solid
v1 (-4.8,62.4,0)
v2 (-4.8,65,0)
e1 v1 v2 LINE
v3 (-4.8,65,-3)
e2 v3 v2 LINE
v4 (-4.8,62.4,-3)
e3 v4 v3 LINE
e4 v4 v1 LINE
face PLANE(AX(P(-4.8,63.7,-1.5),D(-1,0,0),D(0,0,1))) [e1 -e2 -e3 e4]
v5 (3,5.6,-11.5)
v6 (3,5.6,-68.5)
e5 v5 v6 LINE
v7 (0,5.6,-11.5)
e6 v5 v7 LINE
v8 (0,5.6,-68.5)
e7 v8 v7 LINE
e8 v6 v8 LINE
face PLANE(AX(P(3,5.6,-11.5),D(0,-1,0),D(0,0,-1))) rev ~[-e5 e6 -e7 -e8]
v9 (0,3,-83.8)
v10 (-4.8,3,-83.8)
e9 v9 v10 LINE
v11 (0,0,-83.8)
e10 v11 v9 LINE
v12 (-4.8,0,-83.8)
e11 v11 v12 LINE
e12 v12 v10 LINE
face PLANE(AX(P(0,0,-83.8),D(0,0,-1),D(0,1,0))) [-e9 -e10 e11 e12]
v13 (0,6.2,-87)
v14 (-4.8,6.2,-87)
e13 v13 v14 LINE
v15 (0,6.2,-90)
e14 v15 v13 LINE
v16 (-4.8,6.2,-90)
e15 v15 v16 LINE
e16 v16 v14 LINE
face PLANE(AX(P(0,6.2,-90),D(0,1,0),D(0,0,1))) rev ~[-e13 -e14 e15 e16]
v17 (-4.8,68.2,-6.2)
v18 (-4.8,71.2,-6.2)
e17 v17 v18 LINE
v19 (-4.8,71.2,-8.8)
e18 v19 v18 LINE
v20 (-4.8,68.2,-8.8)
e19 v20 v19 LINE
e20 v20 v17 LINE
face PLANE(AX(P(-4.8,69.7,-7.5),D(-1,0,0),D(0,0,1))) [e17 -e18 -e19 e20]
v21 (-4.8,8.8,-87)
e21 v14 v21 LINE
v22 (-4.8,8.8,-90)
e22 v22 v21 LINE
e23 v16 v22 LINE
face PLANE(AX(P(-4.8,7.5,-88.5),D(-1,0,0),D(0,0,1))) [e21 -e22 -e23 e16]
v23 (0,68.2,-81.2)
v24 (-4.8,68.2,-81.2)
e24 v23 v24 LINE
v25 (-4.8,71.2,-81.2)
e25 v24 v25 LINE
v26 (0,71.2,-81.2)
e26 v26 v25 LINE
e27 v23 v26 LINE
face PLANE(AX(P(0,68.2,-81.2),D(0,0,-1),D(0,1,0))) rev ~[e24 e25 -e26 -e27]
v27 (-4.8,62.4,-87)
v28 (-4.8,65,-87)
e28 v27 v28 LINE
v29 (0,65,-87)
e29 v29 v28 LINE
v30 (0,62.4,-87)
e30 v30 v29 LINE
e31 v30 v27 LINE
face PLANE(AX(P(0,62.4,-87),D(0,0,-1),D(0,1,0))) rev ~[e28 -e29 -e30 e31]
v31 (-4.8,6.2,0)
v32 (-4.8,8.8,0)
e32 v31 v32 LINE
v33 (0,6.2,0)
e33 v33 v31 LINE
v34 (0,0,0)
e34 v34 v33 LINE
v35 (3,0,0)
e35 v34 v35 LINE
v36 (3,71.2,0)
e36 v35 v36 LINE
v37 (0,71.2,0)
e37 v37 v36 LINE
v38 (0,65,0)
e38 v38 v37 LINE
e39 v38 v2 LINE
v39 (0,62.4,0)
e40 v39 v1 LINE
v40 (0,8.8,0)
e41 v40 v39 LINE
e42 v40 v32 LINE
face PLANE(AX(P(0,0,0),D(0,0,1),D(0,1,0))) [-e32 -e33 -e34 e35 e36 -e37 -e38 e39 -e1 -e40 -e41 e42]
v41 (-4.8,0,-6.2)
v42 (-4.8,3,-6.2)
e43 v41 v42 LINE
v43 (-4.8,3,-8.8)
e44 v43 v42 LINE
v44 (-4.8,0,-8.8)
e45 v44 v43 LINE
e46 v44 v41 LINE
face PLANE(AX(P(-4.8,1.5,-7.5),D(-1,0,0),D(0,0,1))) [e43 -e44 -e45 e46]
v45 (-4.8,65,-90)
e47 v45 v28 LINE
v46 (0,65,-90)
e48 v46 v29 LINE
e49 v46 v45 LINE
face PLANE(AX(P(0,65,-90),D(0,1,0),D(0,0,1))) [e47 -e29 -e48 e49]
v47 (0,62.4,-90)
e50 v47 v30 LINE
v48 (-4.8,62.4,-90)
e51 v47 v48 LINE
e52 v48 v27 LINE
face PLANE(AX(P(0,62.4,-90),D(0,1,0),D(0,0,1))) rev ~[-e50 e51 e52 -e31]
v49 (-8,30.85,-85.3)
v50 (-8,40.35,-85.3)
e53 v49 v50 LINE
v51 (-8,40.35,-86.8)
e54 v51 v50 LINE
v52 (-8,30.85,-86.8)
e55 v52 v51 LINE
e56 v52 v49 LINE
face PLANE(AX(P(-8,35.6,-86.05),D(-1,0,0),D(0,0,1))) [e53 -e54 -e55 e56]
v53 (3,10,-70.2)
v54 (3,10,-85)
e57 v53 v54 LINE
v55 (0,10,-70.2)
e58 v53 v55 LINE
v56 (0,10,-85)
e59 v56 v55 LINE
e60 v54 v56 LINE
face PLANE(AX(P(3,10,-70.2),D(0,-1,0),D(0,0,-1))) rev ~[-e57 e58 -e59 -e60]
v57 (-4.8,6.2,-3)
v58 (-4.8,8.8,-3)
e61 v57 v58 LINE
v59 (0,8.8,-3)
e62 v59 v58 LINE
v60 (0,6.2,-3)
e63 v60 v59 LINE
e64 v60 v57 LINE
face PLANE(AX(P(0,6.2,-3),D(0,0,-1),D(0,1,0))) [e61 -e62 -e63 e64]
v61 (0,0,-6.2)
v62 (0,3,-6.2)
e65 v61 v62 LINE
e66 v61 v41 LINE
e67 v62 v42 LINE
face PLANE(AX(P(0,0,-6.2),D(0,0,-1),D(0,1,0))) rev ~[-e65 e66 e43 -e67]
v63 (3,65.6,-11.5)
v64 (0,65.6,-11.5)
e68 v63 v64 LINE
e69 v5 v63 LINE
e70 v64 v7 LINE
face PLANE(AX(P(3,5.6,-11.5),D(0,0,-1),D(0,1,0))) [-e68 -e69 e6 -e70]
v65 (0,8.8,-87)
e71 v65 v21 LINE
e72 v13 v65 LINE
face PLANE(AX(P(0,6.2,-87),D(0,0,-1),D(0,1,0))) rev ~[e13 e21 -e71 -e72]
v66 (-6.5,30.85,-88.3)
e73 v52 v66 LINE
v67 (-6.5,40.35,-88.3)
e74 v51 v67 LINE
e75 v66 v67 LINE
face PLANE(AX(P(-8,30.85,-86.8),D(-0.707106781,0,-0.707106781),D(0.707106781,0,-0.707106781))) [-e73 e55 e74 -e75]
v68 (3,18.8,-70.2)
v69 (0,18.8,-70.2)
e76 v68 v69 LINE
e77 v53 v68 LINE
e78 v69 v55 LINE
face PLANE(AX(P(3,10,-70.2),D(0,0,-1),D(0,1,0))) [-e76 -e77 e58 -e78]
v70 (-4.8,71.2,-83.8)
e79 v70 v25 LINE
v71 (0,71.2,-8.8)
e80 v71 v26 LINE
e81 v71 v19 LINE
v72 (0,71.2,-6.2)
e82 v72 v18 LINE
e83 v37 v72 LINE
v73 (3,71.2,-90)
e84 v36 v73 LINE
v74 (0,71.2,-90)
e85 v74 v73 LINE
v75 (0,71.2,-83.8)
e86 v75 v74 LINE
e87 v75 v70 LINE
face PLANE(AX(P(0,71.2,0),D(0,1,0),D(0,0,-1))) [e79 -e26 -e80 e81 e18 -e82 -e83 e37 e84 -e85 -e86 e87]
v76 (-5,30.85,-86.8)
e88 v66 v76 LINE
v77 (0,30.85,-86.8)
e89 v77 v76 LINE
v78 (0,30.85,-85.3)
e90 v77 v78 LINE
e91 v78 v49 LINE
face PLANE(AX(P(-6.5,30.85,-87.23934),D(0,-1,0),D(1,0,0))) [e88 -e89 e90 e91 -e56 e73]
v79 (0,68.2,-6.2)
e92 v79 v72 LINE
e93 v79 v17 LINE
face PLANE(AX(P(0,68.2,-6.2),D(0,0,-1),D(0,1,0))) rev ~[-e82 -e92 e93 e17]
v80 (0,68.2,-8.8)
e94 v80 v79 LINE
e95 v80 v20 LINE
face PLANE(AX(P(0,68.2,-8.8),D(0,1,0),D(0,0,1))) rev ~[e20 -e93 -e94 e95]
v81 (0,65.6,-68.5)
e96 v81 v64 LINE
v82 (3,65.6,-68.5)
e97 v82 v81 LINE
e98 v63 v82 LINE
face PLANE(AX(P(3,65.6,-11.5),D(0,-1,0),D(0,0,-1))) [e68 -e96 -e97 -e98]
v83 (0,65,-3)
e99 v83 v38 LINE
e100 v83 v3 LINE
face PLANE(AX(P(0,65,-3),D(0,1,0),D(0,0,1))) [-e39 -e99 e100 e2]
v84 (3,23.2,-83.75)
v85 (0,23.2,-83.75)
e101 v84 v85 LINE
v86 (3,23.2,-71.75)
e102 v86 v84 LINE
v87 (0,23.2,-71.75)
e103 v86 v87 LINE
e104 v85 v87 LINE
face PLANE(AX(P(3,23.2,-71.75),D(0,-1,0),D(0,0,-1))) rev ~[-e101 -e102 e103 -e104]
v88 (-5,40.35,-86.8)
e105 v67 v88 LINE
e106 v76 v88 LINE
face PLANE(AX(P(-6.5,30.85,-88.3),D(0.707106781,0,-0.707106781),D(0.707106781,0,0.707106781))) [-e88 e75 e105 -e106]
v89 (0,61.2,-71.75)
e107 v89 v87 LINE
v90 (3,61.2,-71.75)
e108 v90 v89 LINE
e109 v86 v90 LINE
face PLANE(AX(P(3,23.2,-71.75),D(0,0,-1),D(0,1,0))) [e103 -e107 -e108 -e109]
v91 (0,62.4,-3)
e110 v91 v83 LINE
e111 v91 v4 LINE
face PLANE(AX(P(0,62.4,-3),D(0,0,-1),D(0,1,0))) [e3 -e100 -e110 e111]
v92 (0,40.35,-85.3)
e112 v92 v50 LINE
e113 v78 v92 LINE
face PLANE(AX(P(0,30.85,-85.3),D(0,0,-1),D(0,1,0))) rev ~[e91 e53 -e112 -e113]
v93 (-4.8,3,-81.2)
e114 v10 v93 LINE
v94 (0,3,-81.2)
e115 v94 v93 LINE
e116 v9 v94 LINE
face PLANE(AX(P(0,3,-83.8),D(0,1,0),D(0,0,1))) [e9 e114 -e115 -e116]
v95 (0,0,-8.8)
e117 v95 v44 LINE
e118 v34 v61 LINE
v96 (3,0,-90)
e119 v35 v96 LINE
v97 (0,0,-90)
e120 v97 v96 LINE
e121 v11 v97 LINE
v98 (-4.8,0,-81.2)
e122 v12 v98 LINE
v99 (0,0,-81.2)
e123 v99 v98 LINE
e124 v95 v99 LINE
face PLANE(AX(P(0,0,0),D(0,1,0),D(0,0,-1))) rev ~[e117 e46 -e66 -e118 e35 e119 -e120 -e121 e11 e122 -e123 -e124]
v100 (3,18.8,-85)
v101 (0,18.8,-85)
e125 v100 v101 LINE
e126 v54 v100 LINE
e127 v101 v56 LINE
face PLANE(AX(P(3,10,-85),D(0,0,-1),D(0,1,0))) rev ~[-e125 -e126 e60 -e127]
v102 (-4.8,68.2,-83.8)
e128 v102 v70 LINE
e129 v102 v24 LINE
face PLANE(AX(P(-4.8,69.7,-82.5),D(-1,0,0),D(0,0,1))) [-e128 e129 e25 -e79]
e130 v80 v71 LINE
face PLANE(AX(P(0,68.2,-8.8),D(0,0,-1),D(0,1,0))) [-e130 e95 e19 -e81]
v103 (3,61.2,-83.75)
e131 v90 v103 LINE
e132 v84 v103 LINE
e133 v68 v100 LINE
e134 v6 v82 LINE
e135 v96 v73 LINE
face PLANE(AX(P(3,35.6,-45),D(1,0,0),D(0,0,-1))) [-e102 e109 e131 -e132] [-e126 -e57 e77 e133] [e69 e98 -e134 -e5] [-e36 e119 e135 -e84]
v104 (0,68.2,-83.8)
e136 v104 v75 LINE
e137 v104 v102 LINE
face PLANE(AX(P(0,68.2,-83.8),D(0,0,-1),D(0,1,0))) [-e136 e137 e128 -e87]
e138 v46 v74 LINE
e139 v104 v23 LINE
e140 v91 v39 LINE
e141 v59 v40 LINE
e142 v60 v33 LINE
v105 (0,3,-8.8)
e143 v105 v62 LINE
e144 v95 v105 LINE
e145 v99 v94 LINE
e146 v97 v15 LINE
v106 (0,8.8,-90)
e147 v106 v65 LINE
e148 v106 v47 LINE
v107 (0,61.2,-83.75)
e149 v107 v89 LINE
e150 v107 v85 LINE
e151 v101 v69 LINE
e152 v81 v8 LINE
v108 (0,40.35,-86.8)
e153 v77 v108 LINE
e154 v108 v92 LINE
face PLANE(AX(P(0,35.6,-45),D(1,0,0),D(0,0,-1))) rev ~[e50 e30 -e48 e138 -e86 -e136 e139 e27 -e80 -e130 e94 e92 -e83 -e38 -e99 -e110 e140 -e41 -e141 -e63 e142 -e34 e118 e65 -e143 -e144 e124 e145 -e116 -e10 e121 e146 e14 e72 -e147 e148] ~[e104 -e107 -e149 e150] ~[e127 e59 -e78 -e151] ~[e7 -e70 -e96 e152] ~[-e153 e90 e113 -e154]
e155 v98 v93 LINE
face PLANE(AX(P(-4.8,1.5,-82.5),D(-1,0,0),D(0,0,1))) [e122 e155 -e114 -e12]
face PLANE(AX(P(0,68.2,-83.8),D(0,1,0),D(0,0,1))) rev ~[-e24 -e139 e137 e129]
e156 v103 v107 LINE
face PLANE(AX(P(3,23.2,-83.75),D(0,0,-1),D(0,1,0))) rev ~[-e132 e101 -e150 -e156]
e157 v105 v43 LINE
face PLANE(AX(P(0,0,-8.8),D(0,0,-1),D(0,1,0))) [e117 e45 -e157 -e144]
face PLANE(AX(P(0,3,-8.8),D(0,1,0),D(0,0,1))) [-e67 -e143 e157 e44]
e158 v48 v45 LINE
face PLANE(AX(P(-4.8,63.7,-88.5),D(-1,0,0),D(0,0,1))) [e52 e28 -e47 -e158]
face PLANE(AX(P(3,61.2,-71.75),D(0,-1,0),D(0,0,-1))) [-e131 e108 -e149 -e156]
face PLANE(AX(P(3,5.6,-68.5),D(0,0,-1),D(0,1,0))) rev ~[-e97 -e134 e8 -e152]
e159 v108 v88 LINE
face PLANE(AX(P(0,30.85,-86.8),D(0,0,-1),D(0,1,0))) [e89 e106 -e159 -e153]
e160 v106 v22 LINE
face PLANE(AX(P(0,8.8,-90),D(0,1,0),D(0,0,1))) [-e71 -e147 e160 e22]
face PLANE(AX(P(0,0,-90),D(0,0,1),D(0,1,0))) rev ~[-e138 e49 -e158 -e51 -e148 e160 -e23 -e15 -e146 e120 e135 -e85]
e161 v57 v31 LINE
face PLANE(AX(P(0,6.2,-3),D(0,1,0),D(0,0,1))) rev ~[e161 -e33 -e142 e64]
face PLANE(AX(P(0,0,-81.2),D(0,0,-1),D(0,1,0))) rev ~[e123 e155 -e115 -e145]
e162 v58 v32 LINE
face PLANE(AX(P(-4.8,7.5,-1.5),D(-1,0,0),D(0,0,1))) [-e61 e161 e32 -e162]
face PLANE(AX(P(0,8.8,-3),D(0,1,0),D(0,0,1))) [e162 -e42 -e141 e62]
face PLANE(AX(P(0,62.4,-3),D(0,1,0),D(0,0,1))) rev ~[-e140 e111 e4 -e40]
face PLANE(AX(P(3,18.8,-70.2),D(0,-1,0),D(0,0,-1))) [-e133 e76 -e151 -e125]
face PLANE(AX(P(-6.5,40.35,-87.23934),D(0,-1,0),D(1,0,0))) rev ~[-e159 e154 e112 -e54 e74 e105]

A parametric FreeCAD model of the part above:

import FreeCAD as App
import Part
import Sketcher


def add_polygon(sketch, points):
    """Adds a closed chain of lines whose ends are joined by coincident constraints."""
    first, n = sketch.GeometryCount, len(points)
    for a, b in zip(points, points[1:] + points[:1]):
        sketch.addGeometry(Part.LineSegment(App.Vector(*a, 0), App.Vector(*b, 0)), False)
    for i in range(n):
        sketch.addConstraint(Sketcher.Constraint("Coincident", first + i, 2, first + (i + 1) % n, 1))

doc = App.newDocument("Part")
body = doc.addObject("PartDesign::Body", "Body")

# Sketch on YZ plane
sketch1 = doc.addObject("Sketcher::SketchObject", "Sketch")
body.addObject(sketch1)
sketch1.AttachmentSupport = (doc.YZ_Plane, [""])
sketch1.MapMode = "FlatFace"
add_polygon(sketch1, [(71.2, 0), (0, 0), (0, -90), (71.2, -90)])  # lines 0-3
sketch1.addConstraint(Sketcher.Constraint("Horizontal", 0))
sketch1.addConstraint(Sketcher.Constraint("Vertical", 1))
sketch1.addConstraint(Sketcher.Constraint("Horizontal", 2))
sketch1.addConstraint(Sketcher.Constraint("Vertical", 3))
sketch1.addConstraint(Sketcher.Constraint("Coincident", 0, 2, -1, 1))
sketch1.addConstraint(Sketcher.Constraint("DistanceY", 1, 2, 1, 1, 90.0))
sketch1.addConstraint(Sketcher.Constraint("DistanceX", 0, 2, 0, 1, 71.2))
pad1 = doc.addObject("PartDesign::Pad", "Pad")
body.addObject(pad1)
pad1.Profile = sketch1
pad1.Length = 3

# Sketch on YZ plane
sketch2 = doc.addObject("Sketcher::SketchObject", "Sketch001")
body.addObject(sketch2)
sketch2.AttachmentSupport = (doc.YZ_Plane, [""])
sketch2.MapMode = "FlatFace"
add_polygon(sketch2, [(65, -90), (62.4, -90), (62.4, -87), (65, -87)])  # lines 0-3
add_polygon(sketch2, [(71.2, -83.8), (68.2, -83.8), (68.2, -81.2), (71.2, -81.2)])  # lines 4-7
add_polygon(sketch2, [(71.2, -8.8), (68.2, -8.8), (68.2, -6.2), (71.2, -6.2)])  # lines 8-11
add_polygon(sketch2, [(65, -3), (62.4, -3), (62.4, 0), (65, 0)])  # lines 12-15
add_polygon(sketch2, [(8.8, -3), (6.2, -3), (6.2, 0), (8.8, 0)])  # lines 16-19
add_polygon(sketch2, [(3, -8.8), (0, -8.8), (0, -6.2), (3, -6.2)])  # lines 20-23
add_polygon(sketch2, [(8.8, -90), (6.2, -90), (6.2, -87), (8.8, -87)])  # lines 24-27
add_polygon(sketch2, [(3, -83.8), (0, -83.8), (0, -81.2), (3, -81.2)])  # lines 28-31
sketch2.addConstraint(Sketcher.Constraint("Horizontal", 0))
sketch2.addConstraint(Sketcher.Constraint("Vertical", 1))
sketch2.addConstraint(Sketcher.Constraint("Horizontal", 2))
sketch2.addConstraint(Sketcher.Constraint("Vertical", 3))
sketch2.addConstraint(Sketcher.Constraint("Horizontal", 4))
sketch2.addConstraint(Sketcher.Constraint("Vertical", 5))
sketch2.addConstraint(Sketcher.Constraint("Horizontal", 6))
sketch2.addConstraint(Sketcher.Constraint("Vertical", 7))
sketch2.addConstraint(Sketcher.Constraint("Horizontal", 8))
sketch2.addConstraint(Sketcher.Constraint("Vertical", 9))
sketch2.addConstraint(Sketcher.Constraint("Horizontal", 10))
sketch2.addConstraint(Sketcher.Constraint("Vertical", 11))
sketch2.addConstraint(Sketcher.Constraint("Horizontal", 12))
sketch2.addConstraint(Sketcher.Constraint("Vertical", 13))
sketch2.addConstraint(Sketcher.Constraint("Horizontal", 14))
sketch2.addConstraint(Sketcher.Constraint("Vertical", 15))
sketch2.addConstraint(Sketcher.Constraint("Horizontal", 16))
sketch2.addConstraint(Sketcher.Constraint("Vertical", 17))
sketch2.addConstraint(Sketcher.Constraint("Horizontal", 18))
sketch2.addConstraint(Sketcher.Constraint("Vertical", 19))
sketch2.addConstraint(Sketcher.Constraint("Horizontal", 20))
sketch2.addConstraint(Sketcher.Constraint("Vertical", 21))
sketch2.addConstraint(Sketcher.Constraint("Horizontal", 22))
sketch2.addConstraint(Sketcher.Constraint("Vertical", 23))
sketch2.addConstraint(Sketcher.Constraint("Horizontal", 24))
sketch2.addConstraint(Sketcher.Constraint("Vertical", 25))
sketch2.addConstraint(Sketcher.Constraint("Horizontal", 26))
sketch2.addConstraint(Sketcher.Constraint("Vertical", 27))
sketch2.addConstraint(Sketcher.Constraint("Horizontal", 28))
sketch2.addConstraint(Sketcher.Constraint("Vertical", 29))
sketch2.addConstraint(Sketcher.Constraint("Horizontal", 30))
sketch2.addConstraint(Sketcher.Constraint("Vertical", 31))
sketch2.addConstraint(Sketcher.Constraint("PointOnObject", 13, 2, -1))
sketch2.addConstraint(Sketcher.Constraint("PointOnObject", 17, 2, -1))
sketch2.addConstraint(Sketcher.Constraint("PointOnObject", 20, 2, -2))
sketch2.addConstraint(Sketcher.Constraint("PointOnObject", 28, 2, -2))
sketch2.addConstraint(Sketcher.Constraint("Horizontal", 15, 2, 16, 2))
sketch2.addConstraint(Sketcher.Constraint("Horizontal", 11, 2, 20, 2))
sketch2.addConstraint(Sketcher.Constraint("Horizontal", 10, 2, 21, 2))
sketch2.addConstraint(Sketcher.Constraint("Horizontal", 3, 2, 24, 2))
sketch2.addConstraint(Sketcher.Constraint("Horizontal", 2, 2, 25, 2))
sketch2.addConstraint(Sketcher.Constraint("Horizontal", 7, 2, 28, 2))
sketch2.addConstraint(Sketcher.Constraint("Horizontal", 6, 2, 29, 2))
sketch2.addConstraint(Sketcher.Constraint("Vertical", 5, 2, 8, 2))
sketch2.addConstraint(Sketcher.Constraint("Vertical", 7, 2, 10, 2))
sketch2.addConstraint(Sketcher.Constraint("Vertical", 1, 2, 12, 2))
sketch2.addConstraint(Sketcher.Constraint("Vertical", 3, 2, 14, 2))
sketch2.addConstraint(Sketcher.Constraint("Vertical", 17, 2, 24, 2))
sketch2.addConstraint(Sketcher.Constraint("Vertical", 19, 2, 26, 2))
sketch2.addConstraint(Sketcher.Constraint("Vertical", 23, 2, 30, 2))
sketch2.addConstraint(Sketcher.Constraint("Equal", 14, 16))
sketch2.addConstraint(Sketcher.Constraint("Equal", 10, 20))
sketch2.addConstraint(Sketcher.Constraint("Equal", 30, 1))
sketch2.addConstraint(Sketcher.Constraint("Equal", 26, 5))
sketch2.addConstraint(Sketcher.Constraint("Equal", 7, 9))
sketch2.addConstraint(Sketcher.Constraint("Equal", 3, 13))
sketch2.addConstraint(Sketcher.Constraint("DistanceX", 4, 2, 4, 1, 3.0))
sketch2.addConstraint(Sketcher.Constraint("DistanceX", 0, 2, 0, 1, 2.6))
sketch2.addConstraint(Sketcher.Constraint("DistanceY", 0, 2, -1, 1, 90.0))
sketch2.addConstraint(Sketcher.Constraint("DistanceX", -1, 1, 2, 2, 65.0))
sketch2.addConstraint(Sketcher.Constraint("DistanceY", 4, 2, 8, 2, 75.0))
sketch2.addConstraint(Sketcher.Constraint("DistanceX", 16, 2, 9, 2, 62.0))
sketch2.addConstraint(Sketcher.Constraint("DistanceX", -1, 1, 4, 2, 68.2))
sketch2.addConstraint(Sketcher.Constraint("DistanceY", 4, 2, -1, 1, 83.8))
pad2 = doc.addObject("PartDesign::Pad", "Pad001")
body.addObject(pad2)
pad2.Profile = sketch2
pad2.Length = 4.8
pad2.Reversed = True

# Sketch on YZ plane
sketch3 = doc.addObject("Sketcher::SketchObject", "Sketch002")
body.addObject(sketch3)
sketch3.AttachmentSupport = (doc.YZ_Plane, [""])
sketch3.MapMode = "FlatFace"
sketch3.AttachmentOffset = App.Placement(App.Vector(0, 0, 3), App.Rotation())
add_polygon(sketch3, [(65.6, -11.5), (5.6, -11.5), (5.6, -68.5), (65.6, -68.5)])  # lines 0-3
sketch3.addConstraint(Sketcher.Constraint("Horizontal", 0))
sketch3.addConstraint(Sketcher.Constraint("Vertical", 1))
sketch3.addConstraint(Sketcher.Constraint("Horizontal", 2))
sketch3.addConstraint(Sketcher.Constraint("Vertical", 3))
sketch3.addConstraint(Sketcher.Constraint("DistanceX", 0, 2, 0, 1, 60.0))
sketch3.addConstraint(Sketcher.Constraint("DistanceY", 1, 2, 1, 1, 57.0))
sketch3.addConstraint(Sketcher.Constraint("DistanceX", -1, 1, 0, 2, 5.6))
sketch3.addConstraint(Sketcher.Constraint("DistanceY", 0, 2, -1, 1, 11.5))
pocket1 = doc.addObject("PartDesign::Pocket", "Pocket")
body.addObject(pocket1)
pocket1.Profile = sketch3
pocket1.Type = "UpToFirst"

# Sketch on YZ plane
sketch4 = doc.addObject("Sketcher::SketchObject", "Sketch003")
body.addObject(sketch4)
sketch4.AttachmentSupport = (doc.YZ_Plane, [""])
sketch4.MapMode = "FlatFace"
sketch4.AttachmentOffset = App.Placement(App.Vector(0, 0, 3), App.Rotation())
add_polygon(sketch4, [(18.8, -70.2), (10, -70.2), (10, -85), (18.8, -85)])  # lines 0-3
sketch4.addConstraint(Sketcher.Constraint("Horizontal", 0))
sketch4.addConstraint(Sketcher.Constraint("Vertical", 1))
sketch4.addConstraint(Sketcher.Constraint("Horizontal", 2))
sketch4.addConstraint(Sketcher.Constraint("Vertical", 3))
sketch4.addConstraint(Sketcher.Constraint("DistanceX", 0, 2, 0, 1, 8.8))
sketch4.addConstraint(Sketcher.Constraint("DistanceY", 1, 2, 1, 1, 14.8))
sketch4.addConstraint(Sketcher.Constraint("DistanceX", -1, 1, 0, 2, 10.0))
sketch4.addConstraint(Sketcher.Constraint("DistanceY", 1, 2, -1, 1, 85.0))
pocket2 = doc.addObject("PartDesign::Pocket", "Pocket001")
body.addObject(pocket2)
pocket2.Profile = sketch4
pocket2.Type = "UpToFirst"

# Sketch on YZ plane
sketch5 = doc.addObject("Sketcher::SketchObject", "Sketch004")
body.addObject(sketch5)
sketch5.AttachmentSupport = (doc.YZ_Plane, [""])
sketch5.MapMode = "FlatFace"
sketch5.AttachmentOffset = App.Placement(App.Vector(0, 0, 3), App.Rotation())
add_polygon(sketch5, [(61.2, -71.75), (23.2, -71.75), (23.2, -83.75), (61.2, -83.75)])  # lines 0-3
sketch5.addConstraint(Sketcher.Constraint("Horizontal", 0))
sketch5.addConstraint(Sketcher.Constraint("Vertical", 1))
sketch5.addConstraint(Sketcher.Constraint("Horizontal", 2))
sketch5.addConstraint(Sketcher.Constraint("Vertical", 3))
sketch5.addConstraint(Sketcher.Constraint("DistanceX", 0, 2, 0, 1, 38.0))
sketch5.addConstraint(Sketcher.Constraint("DistanceY", 1, 2, 1, 1, 12.0))
sketch5.addConstraint(Sketcher.Constraint("DistanceX", -1, 1, 0, 2, 23.2))
sketch5.addConstraint(Sketcher.Constraint("DistanceY", 0, 2, -1, 1, 71.75))
pocket3 = doc.addObject("PartDesign::Pocket", "Pocket002")
body.addObject(pocket3)
pocket3.Profile = sketch5
pocket3.Type = "UpToFirst"

# Sketch on YZ plane
sketch6 = doc.addObject("Sketcher::SketchObject", "Sketch005")
body.addObject(sketch6)
sketch6.AttachmentSupport = (doc.YZ_Plane, [""])
sketch6.MapMode = "FlatFace"
add_polygon(sketch6, [(40.35, -86.8), (30.85, -86.8), (30.85, -85.3), (40.35, -85.3)])  # lines 0-3
sketch6.addConstraint(Sketcher.Constraint("Horizontal", 0))
sketch6.addConstraint(Sketcher.Constraint("Vertical", 1))
sketch6.addConstraint(Sketcher.Constraint("Horizontal", 2))
sketch6.addConstraint(Sketcher.Constraint("Vertical", 3))
sketch6.addConstraint(Sketcher.Constraint("DistanceX", 0, 2, 0, 1, 9.5))
sketch6.addConstraint(Sketcher.Constraint("DistanceY", 1, 1, 1, 2, 1.5))
sketch6.addConstraint(Sketcher.Constraint("DistanceY", 0, 2, -1, 1, 86.8))
sketch6.addConstraint(Sketcher.Constraint("DistanceX", -1, 1, 0, 2, 30.85))
pad3 = doc.addObject("PartDesign::Pad", "Pad002")
body.addObject(pad3)
pad3.Profile = sketch6
pad3.Length = 8
pad3.Reversed = True

# Sketch on XZ plane
sketch7 = doc.addObject("Sketcher::SketchObject", "Sketch006")
body.addObject(sketch7)
sketch7.AttachmentSupport = (doc.XZ_Plane, [""])
sketch7.MapMode = "FlatFace"
sketch7.AttachmentOffset = App.Placement(App.Vector(0, 0, -30.85), App.Rotation())
add_polygon(sketch7, [(-8, -86.8), (-6.5, -88.3), (-5, -86.8)])  # lines 0-2
sketch7.addConstraint(Sketcher.Constraint("Horizontal", 2))
sketch7.addConstraint(Sketcher.Constraint("Perpendicular", 0, 1))
sketch7.addConstraint(Sketcher.Constraint("Equal", 0, 1))
sketch7.addConstraint(Sketcher.Constraint("DistanceX", 2, 2, 2, 1, 3.0))
sketch7.addConstraint(Sketcher.Constraint("DistanceX", 1, 2, -1, 1, 5.0))
sketch7.addConstraint(Sketcher.Constraint("DistanceY", 0, 2, -1, 1, 88.3))
pad4 = doc.addObject("PartDesign::Pad", "Pad003")
body.addObject(pad4)
pad4.Profile = sketch7
pad4.Length = 9.5
pad4.Reversed = True

doc.recompute()
